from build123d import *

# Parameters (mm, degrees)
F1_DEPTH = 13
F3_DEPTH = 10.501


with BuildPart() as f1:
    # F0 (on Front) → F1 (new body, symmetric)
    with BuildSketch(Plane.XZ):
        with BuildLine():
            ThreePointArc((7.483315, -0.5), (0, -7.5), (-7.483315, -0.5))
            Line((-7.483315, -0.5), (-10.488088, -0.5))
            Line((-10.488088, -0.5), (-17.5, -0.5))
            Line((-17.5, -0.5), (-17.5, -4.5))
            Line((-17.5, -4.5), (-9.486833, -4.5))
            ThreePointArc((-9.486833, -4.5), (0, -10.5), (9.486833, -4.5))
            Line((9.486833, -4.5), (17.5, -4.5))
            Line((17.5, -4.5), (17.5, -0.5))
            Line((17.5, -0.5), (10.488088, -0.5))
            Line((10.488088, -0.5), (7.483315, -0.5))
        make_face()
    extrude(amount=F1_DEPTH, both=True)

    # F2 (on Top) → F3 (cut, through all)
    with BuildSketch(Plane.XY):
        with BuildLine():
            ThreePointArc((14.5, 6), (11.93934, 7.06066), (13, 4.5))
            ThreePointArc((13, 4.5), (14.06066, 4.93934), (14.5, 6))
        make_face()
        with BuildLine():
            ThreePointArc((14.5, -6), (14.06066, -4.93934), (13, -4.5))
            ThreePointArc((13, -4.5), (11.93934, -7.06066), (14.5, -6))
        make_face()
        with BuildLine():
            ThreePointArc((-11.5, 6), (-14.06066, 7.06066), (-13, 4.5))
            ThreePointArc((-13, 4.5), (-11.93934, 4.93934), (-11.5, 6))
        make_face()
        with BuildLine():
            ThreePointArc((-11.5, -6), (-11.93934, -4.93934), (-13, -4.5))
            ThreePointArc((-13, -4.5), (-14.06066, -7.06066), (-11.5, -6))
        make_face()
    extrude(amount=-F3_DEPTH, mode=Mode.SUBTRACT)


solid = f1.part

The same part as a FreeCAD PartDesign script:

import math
import FreeCAD as App
import Part
import Sketcher

V = App.Vector

doc = App.newDocument("Part")
body = doc.addObject("PartDesign::Body", "Body")

# Sketch on XZ plane
sketch1 = doc.addObject("Sketcher::SketchObject", "Sketch")
body.addObject(sketch1)
sketch1.AttachmentSupport = (doc.XZ_Plane, [""])
sketch1.MapMode = "FlatFace"
sketch1.addGeometry([
    Part.ArcOfCircle(Part.Circle(V(0, 0, 0), V(0, 0, 1), 7.5), math.radians(-176), math.radians(-4)),  # 0
    Part.LineSegment(V(-7.5, -0.5, 0), V(-17.5, -0.5, 0)),  # 1
    Part.LineSegment(V(-17.5, -0.5, 0), V(-17.5, -4.5, 0)),  # 2
    Part.LineSegment(V(-17.5, -4.5, 0), V(-9.5, -4.5, 0)),  # 3
    Part.ArcOfCircle(Part.Circle(V(0, 0, 0), V(0, 0, 1), 10.5), math.radians(-155), math.radians(-25)),  # 4
    Part.LineSegment(V(9.5, -4.5, 0), V(17.5, -4.5, 0)),  # 5
    Part.LineSegment(V(17.5, -4.5, 0), V(17.5, -0.5, 0)),  # 6
    Part.LineSegment(V(17.5, -0.5, 0), V(7.5, -0.5, 0)),  # 7
], False)
sketch1.addConstraint([
    Sketcher.Constraint("Coincident", 0, 1, 1, 1),
    Sketcher.Constraint("Coincident", 1, 2, 2, 1),
    Sketcher.Constraint("Coincident", 2, 2, 3, 1),
    Sketcher.Constraint("Coincident", 3, 2, 4, 1),
    Sketcher.Constraint("Coincident", 4, 2, 5, 1),
    Sketcher.Constraint("Coincident", 5, 2, 6, 1),
    Sketcher.Constraint("Coincident", 6, 2, 7, 1),
    Sketcher.Constraint("Coincident", 7, 2, 0, 2),
    Sketcher.Constraint("Horizontal", 1),
    Sketcher.Constraint("Vertical", 2),
    Sketcher.Constraint("Horizontal", 3),
    Sketcher.Constraint("Horizontal", 5),
    Sketcher.Constraint("Vertical", 6),
    Sketcher.Constraint("Horizontal", 7),
    Sketcher.Constraint("Coincident", 0, 3, -1, 1),
    Sketcher.Constraint("Coincident", 4, 3, -1, 1),
    Sketcher.Constraint("Symmetric", 2, 2, 5, 2, -2),
    Sketcher.Constraint("Horizontal", 1, 2, 6, 2),
    Sketcher.Constraint("Radius", 0, 7.5),
    Sketcher.Constraint("Radius", 4, 10.5),
    Sketcher.Constraint("DistanceY", 2, 2, 2, 1, 4.0),
    Sketcher.Constraint("DistanceY", 0, 1, -1, 1, 0.5),
    Sketcher.Constraint("DistanceX", 1, 2, -1, 1, 17.5),
])
pad1 = doc.addObject("PartDesign::Pad", "Pad")
body.addObject(pad1)
pad1.Profile = sketch1
pad1.Length = 26
pad1.Midplane = True

# Sketch on XY plane
sketch2 = doc.addObject("Sketcher::SketchObject", "Sketch001")
body.addObject(sketch2)
sketch2.AttachmentSupport = (doc.XY_Plane, [""])
sketch2.MapMode = "FlatFace"
sketch2.addGeometry([
    Part.ArcOfCircle(Part.Circle(V(13, 6, 0), V(0, 0, 1), 1.5), math.radians(0), math.radians(270)),  # 0
    Part.ArcOfCircle(Part.Circle(V(13, 6, 0), V(0, 0, 1), 1.5), math.radians(-90), math.radians(0)),  # 1
    Part.ArcOfCircle(Part.Circle(V(13, -6, 0), V(0, 0, 1), 1.5), math.radians(0), math.radians(90)),  # 2
    Part.ArcOfCircle(Part.Circle(V(13, -6, 0), V(0, 0, 1), 1.5), math.radians(90), math.radians(360)),  # 3
    Part.ArcOfCircle(Part.Circle(V(-13, 6, 0), V(0, 0, 1), 1.5), math.radians(0), math.radians(270)),  # 4
    Part.ArcOfCircle(Part.Circle(V(-13, 6, 0), V(0, 0, 1), 1.5), math.radians(-90), math.radians(0)),  # 5
    Part.ArcOfCircle(Part.Circle(V(-13, -6, 0), V(0, 0, 1), 1.5), math.radians(0), math.radians(90)),  # 6
    Part.ArcOfCircle(Part.Circle(V(-13, -6, 0), V(0, 0, 1), 1.5), math.radians(90), math.radians(360)),  # 7
], False)
sketch2.addConstraint([
    Sketcher.Constraint("Tangent", 0, 1, 1, 2),
    Sketcher.Constraint("Coincident", 1, 1, 0, 2),
    Sketcher.Constraint("Tangent", 2, 1, 3, 2),
    Sketcher.Constraint("Coincident", 3, 1, 2, 2),
    Sketcher.Constraint("Tangent", 4, 1, 5, 2),
    Sketcher.Constraint("Coincident", 5, 1, 4, 2),
    Sketcher.Constraint("Tangent", 6, 1, 7, 2),
    Sketcher.Constraint("Coincident", 7, 1, 6, 2),
    Sketcher.Constraint("Equal", 1, 2),
    Sketcher.Constraint("Equal", 3, 4),
    Sketcher.Constraint("Equal", 5, 6),
    Sketcher.Constraint("Symmetric", 2, 3, 4, 3, -1, 1),
    Sketcher.Constraint("Symmetric", 0, 3, 6, 3, -1, 1),
    Sketcher.Constraint("Symmetric", 0, 3, 4, 3, -2),
    Sketcher.Constraint("Horizontal", 5, 3, 0, 1),
    Sketcher.Constraint("Horizontal", 7, 3, 2, 1),
    Sketcher.Constraint("Horizontal", 0, 1, 4, 1),
    Sketcher.Constraint("Horizontal", 2, 1, 6, 1),
    Sketcher.Constraint("Vertical", 3, 3, 1, 1),
    Sketcher.Constraint("Vertical", 1, 1, 3, 1),
    Sketcher.Constraint("Vertical", 7, 3, 5, 1),
    Sketcher.Constraint("Vertical", 5, 1, 7, 1),
    Sketcher.Constraint("Radius", 0, 1.5),
    Sketcher.Constraint("DistanceX", -1, 1, 0, 3, 13.0),
    Sketcher.Constraint("DistanceY", -1, 1, 0, 3, 6.0),
])
pocket1 = doc.addObject("PartDesign::Pocket", "Pocket")
body.addObject(pocket1)
pocket1.Profile = sketch2
pocket1.Type = "ThroughAll"

doc.recompute()
